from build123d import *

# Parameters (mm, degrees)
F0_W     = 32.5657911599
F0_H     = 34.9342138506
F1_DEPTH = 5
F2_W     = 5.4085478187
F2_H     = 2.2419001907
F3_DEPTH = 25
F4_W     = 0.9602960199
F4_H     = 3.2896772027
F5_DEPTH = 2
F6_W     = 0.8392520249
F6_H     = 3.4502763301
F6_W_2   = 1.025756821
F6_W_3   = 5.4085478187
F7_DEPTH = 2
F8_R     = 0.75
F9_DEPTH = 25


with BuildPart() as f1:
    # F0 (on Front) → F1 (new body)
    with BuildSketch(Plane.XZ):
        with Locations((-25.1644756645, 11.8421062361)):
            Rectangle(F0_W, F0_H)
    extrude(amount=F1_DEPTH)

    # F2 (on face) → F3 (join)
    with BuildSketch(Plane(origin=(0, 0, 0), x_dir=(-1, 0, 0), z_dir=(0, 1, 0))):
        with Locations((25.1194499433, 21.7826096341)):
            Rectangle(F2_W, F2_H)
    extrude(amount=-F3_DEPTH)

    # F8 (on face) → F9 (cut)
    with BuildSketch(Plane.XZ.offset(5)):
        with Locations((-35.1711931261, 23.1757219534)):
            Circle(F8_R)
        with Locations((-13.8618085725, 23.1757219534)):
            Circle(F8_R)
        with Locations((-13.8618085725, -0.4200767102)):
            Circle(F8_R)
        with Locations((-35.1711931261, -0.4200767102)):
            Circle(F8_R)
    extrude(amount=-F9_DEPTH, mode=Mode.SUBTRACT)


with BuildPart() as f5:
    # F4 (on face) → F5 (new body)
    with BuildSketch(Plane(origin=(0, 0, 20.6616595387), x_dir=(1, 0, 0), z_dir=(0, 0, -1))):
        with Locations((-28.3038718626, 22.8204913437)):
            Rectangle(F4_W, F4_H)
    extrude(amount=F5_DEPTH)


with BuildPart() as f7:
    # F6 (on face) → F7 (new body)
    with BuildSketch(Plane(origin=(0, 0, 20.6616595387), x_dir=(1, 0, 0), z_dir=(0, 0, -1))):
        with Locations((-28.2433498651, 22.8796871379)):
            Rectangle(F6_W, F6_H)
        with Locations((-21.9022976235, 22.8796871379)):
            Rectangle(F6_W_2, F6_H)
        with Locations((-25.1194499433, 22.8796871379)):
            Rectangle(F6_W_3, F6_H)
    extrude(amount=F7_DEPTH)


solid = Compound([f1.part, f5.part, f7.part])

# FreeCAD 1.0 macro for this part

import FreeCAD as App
import Part
import Sketcher

V = App.Vector
Q = App.Units.Quantity


def add_polygon(sketch, points):
    """Adds a closed chain of lines whose ends are joined by coincident constraints."""
    first, n = sketch.GeometryCount, len(points)
    for a, b in zip(points, points[1:] + points[:1]):
        sketch.addGeometry(Part.LineSegment(App.Vector(*a, 0), App.Vector(*b, 0)), False)
    for i in range(n):
        sketch.addConstraint(Sketcher.Constraint("Coincident", first + i, 2, first + (i + 1) % n, 1))

doc = App.newDocument("Part")
body = doc.addObject("PartDesign::Body", "Body")

sketch1 = body.newObject("Sketcher::SketchObject", "Sketch")
sketch1.AttachmentSupport = (doc.getObject("XZ_Plane"), [""])
sketch1.MapMode = "FlatFace"
add_polygon(sketch1, [(-41.447371, 29.309213), (-41.447371, -5.625001), (-8.88158, -5.625001), (-8.88158, 29.309213)])
sketch1.addConstraint([
    Sketcher.Constraint("Vertical", 0),
    Sketcher.Constraint("Horizontal", 1),
    Sketcher.Constraint("Vertical", 2),
    Sketcher.Constraint("Horizontal", 3),
    Sketcher.Constraint("DistanceY", 0, 2, -1, 1, Q("5.625001 mm")),
    Sketcher.Constraint("DistanceX", 1, 1, 1, 2, Q("32.565791 mm")),
    Sketcher.Constraint("DistanceY", 0, 2, 0, 1, Q("34.934214 mm")),
    Sketcher.Constraint("DistanceX", 0, 2, -1, 1, Q("41.447371 mm")),
])
pad1 = body.newObject("PartDesign::Pad", "Pad")
pad1.Profile = sketch1
pad1.Length = 5

sketch2 = body.newObject("Sketcher::SketchObject", "Sketch001")
sketch2.AttachmentSupport = (doc.getObject("XZ_Plane"), [""])
sketch2.MapMode = "FlatFace"
add_polygon(sketch2, [(-22.415176, 22.90356), (-22.415176, 20.66166), (-27.823724, 20.66166), (-27.823724, 22.90356)])
sketch2.addConstraint([
    Sketcher.Constraint("Vertical", 0),
    Sketcher.Constraint("Horizontal", 1),
    Sketcher.Constraint("Vertical", 2),
    Sketcher.Constraint("Horizontal", 3),
    Sketcher.Constraint("DistanceY", 0, 2, 0, 1, Q("2.2419 mm")),
    Sketcher.Constraint("DistanceX", 1, 2, 1, 1, Q("5.408548 mm")),
    Sketcher.Constraint("DistanceY", -1, 1, 0, 2, Q("20.66166 mm")),
    Sketcher.Constraint("DistanceX", 0, 2, -1, 1, Q("22.415176 mm")),
])
pad2 = body.newObject("PartDesign::Pad", "Pad001")
pad2.Profile = sketch2
pad2.Length = 25

sketch3 = body.newObject("Sketcher::SketchObject", "Sketch002")
sketch3.AttachmentSupport = (doc.getObject("XZ_Plane"), [""])
sketch3.MapMode = "FlatFace"
sketch3.AttachmentOffset = App.Placement(V(0, 0, 5), App.Rotation())
sketch3.addGeometry([
    Part.Circle(V(-35.171193, 23.175722, 0), V(0, 0, 1), 0.75),
    Part.Circle(V(-13.861809, 23.175722, 0), V(0, 0, 1), 0.75),
    Part.Circle(V(-13.861809, -0.420077, 0), V(0, 0, 1), 0.75),
    Part.Circle(V(-35.171193, -0.420077, 0), V(0, 0, 1), 0.75),
], False)
sketch3.addConstraint([
    Sketcher.Constraint("Equal", 0, 1),
    Sketcher.Constraint("Equal", 1, 2),
    Sketcher.Constraint("Equal", 2, 3),
    Sketcher.Constraint("Horizontal", 0, 3, 1, 3),
    Sketcher.Constraint("Horizontal", 2, 3, 3, 3),
    Sketcher.Constraint("Vertical", 1, 3, 2, 3),
    Sketcher.Constraint("Vertical", 0, 3, 3, 3),
    Sketcher.Constraint("Diameter", 0, Q("1.5 mm")),
    Sketcher.Constraint("DistanceY", 2, 3, 1, 3, Q("23.595799 mm")),
    Sketcher.Constraint("DistanceY", -1, 1, 0, 3, Q("23.175722 mm")),
    Sketcher.Constraint("DistanceX", 1, 3, -1, 1, Q("13.861809 mm")),
    Sketcher.Constraint("DistanceX", 0, 3, -1, 1, Q("35.171193 mm")),
])
pocket1 = body.newObject("PartDesign::Pocket", "Pocket")
pocket1.Profile = sketch3
pocket1.Length = 25
body2 = doc.addObject("PartDesign::Body", "Body001")

sketch4 = body2.newObject("Sketcher::SketchObject", "Sketch003")
sketch4.AttachmentSupport = (doc.getObject("XY_Plane001"), [""])
sketch4.MapMode = "FlatFace"
sketch4.AttachmentOffset = App.Placement(V(0, 0, 20.66166), App.Rotation())
add_polygon(sketch4, [(-28.78402, -24.46533), (-28.78402, -21.175653), (-27.823724, -21.175653), (-27.823724, -24.46533)])
sketch4.addConstraint([
    Sketcher.Constraint("Vertical", 0),
    Sketcher.Constraint("Horizontal", 1),
    Sketcher.Constraint("Vertical", 2),
    Sketcher.Constraint("Horizontal", 3),
    Sketcher.Constraint("DistanceX", 1, 1, 1, 2, Q("0.960296 mm")),
    Sketcher.Constraint("DistanceY", 0, 1, 0, 2, Q("3.289677 mm")),
    Sketcher.Constraint("DistanceX", 0, 2, -1, 1, Q("28.78402 mm")),
    Sketcher.Constraint("DistanceY", 2, 2, -1, 1, Q("24.46533 mm")),
])
pad3 = body2.newObject("PartDesign::Pad", "Pad002")
pad3.Profile = sketch4
pad3.Length = 2
pad3.Reversed = True
body3 = doc.addObject("PartDesign::Body", "Body002")

sketch5 = body3.newObject("Sketcher::SketchObject", "Sketch004")
sketch5.AttachmentSupport = (doc.getObject("XY_Plane002"), [""])
sketch5.MapMode = "FlatFace"
sketch5.AttachmentOffset = App.Placement(V(0, 0, 20.66166), App.Rotation())
add_polygon(sketch5, [(-28.662976, -24.604825), (-28.662976, -21.154549), (-21.389419, -21.154549), (-21.389419, -24.604825)])
sketch5.addConstraint([
    Sketcher.Constraint("Vertical", 0),
    Sketcher.Constraint("Horizontal", 1),
    Sketcher.Constraint("Vertical", 2),
    Sketcher.Constraint("Horizontal", 3),
    Sketcher.Constraint("DistanceX", 1, 1, 1, 2, Q("7.273557 mm")),
    Sketcher.Constraint("DistanceY", 0, 1, 0, 2, Q("3.450276 mm")),
    Sketcher.Constraint("DistanceY", 0, 2, -1, 1, Q("21.154549 mm")),
    Sketcher.Constraint("DistanceX", 1, 2, -1, 1, Q("21.389419 mm")),
])
pad4 = body3.newObject("PartDesign::Pad", "Pad003")
pad4.Profile = sketch5
pad4.Length = 2
pad4.Reversed = True

doc.recompute()
